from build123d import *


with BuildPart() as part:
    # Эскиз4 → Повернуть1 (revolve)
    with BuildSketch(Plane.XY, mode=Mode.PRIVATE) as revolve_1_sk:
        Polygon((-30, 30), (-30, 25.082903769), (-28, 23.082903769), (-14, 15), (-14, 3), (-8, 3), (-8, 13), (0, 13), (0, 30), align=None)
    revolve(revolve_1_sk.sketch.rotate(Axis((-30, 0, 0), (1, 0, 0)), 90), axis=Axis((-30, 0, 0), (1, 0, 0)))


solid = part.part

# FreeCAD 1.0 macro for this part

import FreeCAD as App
import Part
import Sketcher
from FreeCAD import Vector
Q = App.Units.Quantity


def add_polygon(sketch, points):
    """Adds a closed chain of lines whose ends are joined by coincident constraints."""
    first, n = sketch.GeometryCount, len(points)
    for a, b in zip(points, points[1:] + points[:1]):
        sketch.addGeometry(Part.LineSegment(App.Vector(*a, 0), App.Vector(*b, 0)), False)
    for i in range(n):
        sketch.addConstraint(Sketcher.Constraint("Coincident", first + i, 2, first + (i + 1) % n, 1))

doc = App.newDocument("Part")
body = doc.addObject("PartDesign::Body", "Body")

# Sketch on XY plane
sketch1 = body.newObject("Sketcher::SketchObject", "Sketch")
sketch1.AttachmentSupport = (doc.getObject("XY_Plane"), [""])
sketch1.MapMode = "FlatFace"
add_polygon(sketch1, [(-30, 30), (-30, 25.1), (-28, 23.1), (-14, 15), (-14, 3), (-8, 3), (-8, 13), (0, 13), (0, 30)])  # lines 0-8
sketch1.addConstraint([
    Sketcher.Constraint("Vertical", 0),
    Sketcher.Constraint("Vertical", 3),
    Sketcher.Constraint("Horizontal", 4),
    Sketcher.Constraint("Vertical", 5),
    Sketcher.Constraint("Horizontal", 6),
    Sketcher.Constraint("Vertical", 7),
    Sketcher.Constraint("Horizontal", 8),
    Sketcher.Constraint("PointOnObject", 6, 2, -2),
    Sketcher.Constraint("DistanceX", 4, 1, 4, 2, 6.0),
    Sketcher.Constraint("DistanceX", 6, 1, 6, 2, 8.0),
    Sketcher.Constraint("DistanceX", 8, 2, 8, 1, 30.0),
    Sketcher.Constraint("DistanceY", 3, 2, 3, 1, 12.0),
    Sketcher.Constraint("DistanceY", 5, 1, 5, 2, 10.0),
    Sketcher.Constraint("DistanceY", 7, 1, 7, 2, 17.0),
    Sketcher.Constraint("Angle", 1, Q("-45 deg")),
    Sketcher.Constraint("Angle", 2, Q("-30 deg")),
    Sketcher.Constraint("DistanceX", 1, 2, -1, 1, 28.0),
    Sketcher.Constraint("DistanceY", -1, 1, 2, 2, 15.0),
])
revolution = body.newObject("PartDesign::Revolution", "Revolution")
revolution.Profile = sketch1
revolution.ReferenceAxis = (sketch1, ["H_Axis"])
revolution.Angle = 360

doc.recompute()
